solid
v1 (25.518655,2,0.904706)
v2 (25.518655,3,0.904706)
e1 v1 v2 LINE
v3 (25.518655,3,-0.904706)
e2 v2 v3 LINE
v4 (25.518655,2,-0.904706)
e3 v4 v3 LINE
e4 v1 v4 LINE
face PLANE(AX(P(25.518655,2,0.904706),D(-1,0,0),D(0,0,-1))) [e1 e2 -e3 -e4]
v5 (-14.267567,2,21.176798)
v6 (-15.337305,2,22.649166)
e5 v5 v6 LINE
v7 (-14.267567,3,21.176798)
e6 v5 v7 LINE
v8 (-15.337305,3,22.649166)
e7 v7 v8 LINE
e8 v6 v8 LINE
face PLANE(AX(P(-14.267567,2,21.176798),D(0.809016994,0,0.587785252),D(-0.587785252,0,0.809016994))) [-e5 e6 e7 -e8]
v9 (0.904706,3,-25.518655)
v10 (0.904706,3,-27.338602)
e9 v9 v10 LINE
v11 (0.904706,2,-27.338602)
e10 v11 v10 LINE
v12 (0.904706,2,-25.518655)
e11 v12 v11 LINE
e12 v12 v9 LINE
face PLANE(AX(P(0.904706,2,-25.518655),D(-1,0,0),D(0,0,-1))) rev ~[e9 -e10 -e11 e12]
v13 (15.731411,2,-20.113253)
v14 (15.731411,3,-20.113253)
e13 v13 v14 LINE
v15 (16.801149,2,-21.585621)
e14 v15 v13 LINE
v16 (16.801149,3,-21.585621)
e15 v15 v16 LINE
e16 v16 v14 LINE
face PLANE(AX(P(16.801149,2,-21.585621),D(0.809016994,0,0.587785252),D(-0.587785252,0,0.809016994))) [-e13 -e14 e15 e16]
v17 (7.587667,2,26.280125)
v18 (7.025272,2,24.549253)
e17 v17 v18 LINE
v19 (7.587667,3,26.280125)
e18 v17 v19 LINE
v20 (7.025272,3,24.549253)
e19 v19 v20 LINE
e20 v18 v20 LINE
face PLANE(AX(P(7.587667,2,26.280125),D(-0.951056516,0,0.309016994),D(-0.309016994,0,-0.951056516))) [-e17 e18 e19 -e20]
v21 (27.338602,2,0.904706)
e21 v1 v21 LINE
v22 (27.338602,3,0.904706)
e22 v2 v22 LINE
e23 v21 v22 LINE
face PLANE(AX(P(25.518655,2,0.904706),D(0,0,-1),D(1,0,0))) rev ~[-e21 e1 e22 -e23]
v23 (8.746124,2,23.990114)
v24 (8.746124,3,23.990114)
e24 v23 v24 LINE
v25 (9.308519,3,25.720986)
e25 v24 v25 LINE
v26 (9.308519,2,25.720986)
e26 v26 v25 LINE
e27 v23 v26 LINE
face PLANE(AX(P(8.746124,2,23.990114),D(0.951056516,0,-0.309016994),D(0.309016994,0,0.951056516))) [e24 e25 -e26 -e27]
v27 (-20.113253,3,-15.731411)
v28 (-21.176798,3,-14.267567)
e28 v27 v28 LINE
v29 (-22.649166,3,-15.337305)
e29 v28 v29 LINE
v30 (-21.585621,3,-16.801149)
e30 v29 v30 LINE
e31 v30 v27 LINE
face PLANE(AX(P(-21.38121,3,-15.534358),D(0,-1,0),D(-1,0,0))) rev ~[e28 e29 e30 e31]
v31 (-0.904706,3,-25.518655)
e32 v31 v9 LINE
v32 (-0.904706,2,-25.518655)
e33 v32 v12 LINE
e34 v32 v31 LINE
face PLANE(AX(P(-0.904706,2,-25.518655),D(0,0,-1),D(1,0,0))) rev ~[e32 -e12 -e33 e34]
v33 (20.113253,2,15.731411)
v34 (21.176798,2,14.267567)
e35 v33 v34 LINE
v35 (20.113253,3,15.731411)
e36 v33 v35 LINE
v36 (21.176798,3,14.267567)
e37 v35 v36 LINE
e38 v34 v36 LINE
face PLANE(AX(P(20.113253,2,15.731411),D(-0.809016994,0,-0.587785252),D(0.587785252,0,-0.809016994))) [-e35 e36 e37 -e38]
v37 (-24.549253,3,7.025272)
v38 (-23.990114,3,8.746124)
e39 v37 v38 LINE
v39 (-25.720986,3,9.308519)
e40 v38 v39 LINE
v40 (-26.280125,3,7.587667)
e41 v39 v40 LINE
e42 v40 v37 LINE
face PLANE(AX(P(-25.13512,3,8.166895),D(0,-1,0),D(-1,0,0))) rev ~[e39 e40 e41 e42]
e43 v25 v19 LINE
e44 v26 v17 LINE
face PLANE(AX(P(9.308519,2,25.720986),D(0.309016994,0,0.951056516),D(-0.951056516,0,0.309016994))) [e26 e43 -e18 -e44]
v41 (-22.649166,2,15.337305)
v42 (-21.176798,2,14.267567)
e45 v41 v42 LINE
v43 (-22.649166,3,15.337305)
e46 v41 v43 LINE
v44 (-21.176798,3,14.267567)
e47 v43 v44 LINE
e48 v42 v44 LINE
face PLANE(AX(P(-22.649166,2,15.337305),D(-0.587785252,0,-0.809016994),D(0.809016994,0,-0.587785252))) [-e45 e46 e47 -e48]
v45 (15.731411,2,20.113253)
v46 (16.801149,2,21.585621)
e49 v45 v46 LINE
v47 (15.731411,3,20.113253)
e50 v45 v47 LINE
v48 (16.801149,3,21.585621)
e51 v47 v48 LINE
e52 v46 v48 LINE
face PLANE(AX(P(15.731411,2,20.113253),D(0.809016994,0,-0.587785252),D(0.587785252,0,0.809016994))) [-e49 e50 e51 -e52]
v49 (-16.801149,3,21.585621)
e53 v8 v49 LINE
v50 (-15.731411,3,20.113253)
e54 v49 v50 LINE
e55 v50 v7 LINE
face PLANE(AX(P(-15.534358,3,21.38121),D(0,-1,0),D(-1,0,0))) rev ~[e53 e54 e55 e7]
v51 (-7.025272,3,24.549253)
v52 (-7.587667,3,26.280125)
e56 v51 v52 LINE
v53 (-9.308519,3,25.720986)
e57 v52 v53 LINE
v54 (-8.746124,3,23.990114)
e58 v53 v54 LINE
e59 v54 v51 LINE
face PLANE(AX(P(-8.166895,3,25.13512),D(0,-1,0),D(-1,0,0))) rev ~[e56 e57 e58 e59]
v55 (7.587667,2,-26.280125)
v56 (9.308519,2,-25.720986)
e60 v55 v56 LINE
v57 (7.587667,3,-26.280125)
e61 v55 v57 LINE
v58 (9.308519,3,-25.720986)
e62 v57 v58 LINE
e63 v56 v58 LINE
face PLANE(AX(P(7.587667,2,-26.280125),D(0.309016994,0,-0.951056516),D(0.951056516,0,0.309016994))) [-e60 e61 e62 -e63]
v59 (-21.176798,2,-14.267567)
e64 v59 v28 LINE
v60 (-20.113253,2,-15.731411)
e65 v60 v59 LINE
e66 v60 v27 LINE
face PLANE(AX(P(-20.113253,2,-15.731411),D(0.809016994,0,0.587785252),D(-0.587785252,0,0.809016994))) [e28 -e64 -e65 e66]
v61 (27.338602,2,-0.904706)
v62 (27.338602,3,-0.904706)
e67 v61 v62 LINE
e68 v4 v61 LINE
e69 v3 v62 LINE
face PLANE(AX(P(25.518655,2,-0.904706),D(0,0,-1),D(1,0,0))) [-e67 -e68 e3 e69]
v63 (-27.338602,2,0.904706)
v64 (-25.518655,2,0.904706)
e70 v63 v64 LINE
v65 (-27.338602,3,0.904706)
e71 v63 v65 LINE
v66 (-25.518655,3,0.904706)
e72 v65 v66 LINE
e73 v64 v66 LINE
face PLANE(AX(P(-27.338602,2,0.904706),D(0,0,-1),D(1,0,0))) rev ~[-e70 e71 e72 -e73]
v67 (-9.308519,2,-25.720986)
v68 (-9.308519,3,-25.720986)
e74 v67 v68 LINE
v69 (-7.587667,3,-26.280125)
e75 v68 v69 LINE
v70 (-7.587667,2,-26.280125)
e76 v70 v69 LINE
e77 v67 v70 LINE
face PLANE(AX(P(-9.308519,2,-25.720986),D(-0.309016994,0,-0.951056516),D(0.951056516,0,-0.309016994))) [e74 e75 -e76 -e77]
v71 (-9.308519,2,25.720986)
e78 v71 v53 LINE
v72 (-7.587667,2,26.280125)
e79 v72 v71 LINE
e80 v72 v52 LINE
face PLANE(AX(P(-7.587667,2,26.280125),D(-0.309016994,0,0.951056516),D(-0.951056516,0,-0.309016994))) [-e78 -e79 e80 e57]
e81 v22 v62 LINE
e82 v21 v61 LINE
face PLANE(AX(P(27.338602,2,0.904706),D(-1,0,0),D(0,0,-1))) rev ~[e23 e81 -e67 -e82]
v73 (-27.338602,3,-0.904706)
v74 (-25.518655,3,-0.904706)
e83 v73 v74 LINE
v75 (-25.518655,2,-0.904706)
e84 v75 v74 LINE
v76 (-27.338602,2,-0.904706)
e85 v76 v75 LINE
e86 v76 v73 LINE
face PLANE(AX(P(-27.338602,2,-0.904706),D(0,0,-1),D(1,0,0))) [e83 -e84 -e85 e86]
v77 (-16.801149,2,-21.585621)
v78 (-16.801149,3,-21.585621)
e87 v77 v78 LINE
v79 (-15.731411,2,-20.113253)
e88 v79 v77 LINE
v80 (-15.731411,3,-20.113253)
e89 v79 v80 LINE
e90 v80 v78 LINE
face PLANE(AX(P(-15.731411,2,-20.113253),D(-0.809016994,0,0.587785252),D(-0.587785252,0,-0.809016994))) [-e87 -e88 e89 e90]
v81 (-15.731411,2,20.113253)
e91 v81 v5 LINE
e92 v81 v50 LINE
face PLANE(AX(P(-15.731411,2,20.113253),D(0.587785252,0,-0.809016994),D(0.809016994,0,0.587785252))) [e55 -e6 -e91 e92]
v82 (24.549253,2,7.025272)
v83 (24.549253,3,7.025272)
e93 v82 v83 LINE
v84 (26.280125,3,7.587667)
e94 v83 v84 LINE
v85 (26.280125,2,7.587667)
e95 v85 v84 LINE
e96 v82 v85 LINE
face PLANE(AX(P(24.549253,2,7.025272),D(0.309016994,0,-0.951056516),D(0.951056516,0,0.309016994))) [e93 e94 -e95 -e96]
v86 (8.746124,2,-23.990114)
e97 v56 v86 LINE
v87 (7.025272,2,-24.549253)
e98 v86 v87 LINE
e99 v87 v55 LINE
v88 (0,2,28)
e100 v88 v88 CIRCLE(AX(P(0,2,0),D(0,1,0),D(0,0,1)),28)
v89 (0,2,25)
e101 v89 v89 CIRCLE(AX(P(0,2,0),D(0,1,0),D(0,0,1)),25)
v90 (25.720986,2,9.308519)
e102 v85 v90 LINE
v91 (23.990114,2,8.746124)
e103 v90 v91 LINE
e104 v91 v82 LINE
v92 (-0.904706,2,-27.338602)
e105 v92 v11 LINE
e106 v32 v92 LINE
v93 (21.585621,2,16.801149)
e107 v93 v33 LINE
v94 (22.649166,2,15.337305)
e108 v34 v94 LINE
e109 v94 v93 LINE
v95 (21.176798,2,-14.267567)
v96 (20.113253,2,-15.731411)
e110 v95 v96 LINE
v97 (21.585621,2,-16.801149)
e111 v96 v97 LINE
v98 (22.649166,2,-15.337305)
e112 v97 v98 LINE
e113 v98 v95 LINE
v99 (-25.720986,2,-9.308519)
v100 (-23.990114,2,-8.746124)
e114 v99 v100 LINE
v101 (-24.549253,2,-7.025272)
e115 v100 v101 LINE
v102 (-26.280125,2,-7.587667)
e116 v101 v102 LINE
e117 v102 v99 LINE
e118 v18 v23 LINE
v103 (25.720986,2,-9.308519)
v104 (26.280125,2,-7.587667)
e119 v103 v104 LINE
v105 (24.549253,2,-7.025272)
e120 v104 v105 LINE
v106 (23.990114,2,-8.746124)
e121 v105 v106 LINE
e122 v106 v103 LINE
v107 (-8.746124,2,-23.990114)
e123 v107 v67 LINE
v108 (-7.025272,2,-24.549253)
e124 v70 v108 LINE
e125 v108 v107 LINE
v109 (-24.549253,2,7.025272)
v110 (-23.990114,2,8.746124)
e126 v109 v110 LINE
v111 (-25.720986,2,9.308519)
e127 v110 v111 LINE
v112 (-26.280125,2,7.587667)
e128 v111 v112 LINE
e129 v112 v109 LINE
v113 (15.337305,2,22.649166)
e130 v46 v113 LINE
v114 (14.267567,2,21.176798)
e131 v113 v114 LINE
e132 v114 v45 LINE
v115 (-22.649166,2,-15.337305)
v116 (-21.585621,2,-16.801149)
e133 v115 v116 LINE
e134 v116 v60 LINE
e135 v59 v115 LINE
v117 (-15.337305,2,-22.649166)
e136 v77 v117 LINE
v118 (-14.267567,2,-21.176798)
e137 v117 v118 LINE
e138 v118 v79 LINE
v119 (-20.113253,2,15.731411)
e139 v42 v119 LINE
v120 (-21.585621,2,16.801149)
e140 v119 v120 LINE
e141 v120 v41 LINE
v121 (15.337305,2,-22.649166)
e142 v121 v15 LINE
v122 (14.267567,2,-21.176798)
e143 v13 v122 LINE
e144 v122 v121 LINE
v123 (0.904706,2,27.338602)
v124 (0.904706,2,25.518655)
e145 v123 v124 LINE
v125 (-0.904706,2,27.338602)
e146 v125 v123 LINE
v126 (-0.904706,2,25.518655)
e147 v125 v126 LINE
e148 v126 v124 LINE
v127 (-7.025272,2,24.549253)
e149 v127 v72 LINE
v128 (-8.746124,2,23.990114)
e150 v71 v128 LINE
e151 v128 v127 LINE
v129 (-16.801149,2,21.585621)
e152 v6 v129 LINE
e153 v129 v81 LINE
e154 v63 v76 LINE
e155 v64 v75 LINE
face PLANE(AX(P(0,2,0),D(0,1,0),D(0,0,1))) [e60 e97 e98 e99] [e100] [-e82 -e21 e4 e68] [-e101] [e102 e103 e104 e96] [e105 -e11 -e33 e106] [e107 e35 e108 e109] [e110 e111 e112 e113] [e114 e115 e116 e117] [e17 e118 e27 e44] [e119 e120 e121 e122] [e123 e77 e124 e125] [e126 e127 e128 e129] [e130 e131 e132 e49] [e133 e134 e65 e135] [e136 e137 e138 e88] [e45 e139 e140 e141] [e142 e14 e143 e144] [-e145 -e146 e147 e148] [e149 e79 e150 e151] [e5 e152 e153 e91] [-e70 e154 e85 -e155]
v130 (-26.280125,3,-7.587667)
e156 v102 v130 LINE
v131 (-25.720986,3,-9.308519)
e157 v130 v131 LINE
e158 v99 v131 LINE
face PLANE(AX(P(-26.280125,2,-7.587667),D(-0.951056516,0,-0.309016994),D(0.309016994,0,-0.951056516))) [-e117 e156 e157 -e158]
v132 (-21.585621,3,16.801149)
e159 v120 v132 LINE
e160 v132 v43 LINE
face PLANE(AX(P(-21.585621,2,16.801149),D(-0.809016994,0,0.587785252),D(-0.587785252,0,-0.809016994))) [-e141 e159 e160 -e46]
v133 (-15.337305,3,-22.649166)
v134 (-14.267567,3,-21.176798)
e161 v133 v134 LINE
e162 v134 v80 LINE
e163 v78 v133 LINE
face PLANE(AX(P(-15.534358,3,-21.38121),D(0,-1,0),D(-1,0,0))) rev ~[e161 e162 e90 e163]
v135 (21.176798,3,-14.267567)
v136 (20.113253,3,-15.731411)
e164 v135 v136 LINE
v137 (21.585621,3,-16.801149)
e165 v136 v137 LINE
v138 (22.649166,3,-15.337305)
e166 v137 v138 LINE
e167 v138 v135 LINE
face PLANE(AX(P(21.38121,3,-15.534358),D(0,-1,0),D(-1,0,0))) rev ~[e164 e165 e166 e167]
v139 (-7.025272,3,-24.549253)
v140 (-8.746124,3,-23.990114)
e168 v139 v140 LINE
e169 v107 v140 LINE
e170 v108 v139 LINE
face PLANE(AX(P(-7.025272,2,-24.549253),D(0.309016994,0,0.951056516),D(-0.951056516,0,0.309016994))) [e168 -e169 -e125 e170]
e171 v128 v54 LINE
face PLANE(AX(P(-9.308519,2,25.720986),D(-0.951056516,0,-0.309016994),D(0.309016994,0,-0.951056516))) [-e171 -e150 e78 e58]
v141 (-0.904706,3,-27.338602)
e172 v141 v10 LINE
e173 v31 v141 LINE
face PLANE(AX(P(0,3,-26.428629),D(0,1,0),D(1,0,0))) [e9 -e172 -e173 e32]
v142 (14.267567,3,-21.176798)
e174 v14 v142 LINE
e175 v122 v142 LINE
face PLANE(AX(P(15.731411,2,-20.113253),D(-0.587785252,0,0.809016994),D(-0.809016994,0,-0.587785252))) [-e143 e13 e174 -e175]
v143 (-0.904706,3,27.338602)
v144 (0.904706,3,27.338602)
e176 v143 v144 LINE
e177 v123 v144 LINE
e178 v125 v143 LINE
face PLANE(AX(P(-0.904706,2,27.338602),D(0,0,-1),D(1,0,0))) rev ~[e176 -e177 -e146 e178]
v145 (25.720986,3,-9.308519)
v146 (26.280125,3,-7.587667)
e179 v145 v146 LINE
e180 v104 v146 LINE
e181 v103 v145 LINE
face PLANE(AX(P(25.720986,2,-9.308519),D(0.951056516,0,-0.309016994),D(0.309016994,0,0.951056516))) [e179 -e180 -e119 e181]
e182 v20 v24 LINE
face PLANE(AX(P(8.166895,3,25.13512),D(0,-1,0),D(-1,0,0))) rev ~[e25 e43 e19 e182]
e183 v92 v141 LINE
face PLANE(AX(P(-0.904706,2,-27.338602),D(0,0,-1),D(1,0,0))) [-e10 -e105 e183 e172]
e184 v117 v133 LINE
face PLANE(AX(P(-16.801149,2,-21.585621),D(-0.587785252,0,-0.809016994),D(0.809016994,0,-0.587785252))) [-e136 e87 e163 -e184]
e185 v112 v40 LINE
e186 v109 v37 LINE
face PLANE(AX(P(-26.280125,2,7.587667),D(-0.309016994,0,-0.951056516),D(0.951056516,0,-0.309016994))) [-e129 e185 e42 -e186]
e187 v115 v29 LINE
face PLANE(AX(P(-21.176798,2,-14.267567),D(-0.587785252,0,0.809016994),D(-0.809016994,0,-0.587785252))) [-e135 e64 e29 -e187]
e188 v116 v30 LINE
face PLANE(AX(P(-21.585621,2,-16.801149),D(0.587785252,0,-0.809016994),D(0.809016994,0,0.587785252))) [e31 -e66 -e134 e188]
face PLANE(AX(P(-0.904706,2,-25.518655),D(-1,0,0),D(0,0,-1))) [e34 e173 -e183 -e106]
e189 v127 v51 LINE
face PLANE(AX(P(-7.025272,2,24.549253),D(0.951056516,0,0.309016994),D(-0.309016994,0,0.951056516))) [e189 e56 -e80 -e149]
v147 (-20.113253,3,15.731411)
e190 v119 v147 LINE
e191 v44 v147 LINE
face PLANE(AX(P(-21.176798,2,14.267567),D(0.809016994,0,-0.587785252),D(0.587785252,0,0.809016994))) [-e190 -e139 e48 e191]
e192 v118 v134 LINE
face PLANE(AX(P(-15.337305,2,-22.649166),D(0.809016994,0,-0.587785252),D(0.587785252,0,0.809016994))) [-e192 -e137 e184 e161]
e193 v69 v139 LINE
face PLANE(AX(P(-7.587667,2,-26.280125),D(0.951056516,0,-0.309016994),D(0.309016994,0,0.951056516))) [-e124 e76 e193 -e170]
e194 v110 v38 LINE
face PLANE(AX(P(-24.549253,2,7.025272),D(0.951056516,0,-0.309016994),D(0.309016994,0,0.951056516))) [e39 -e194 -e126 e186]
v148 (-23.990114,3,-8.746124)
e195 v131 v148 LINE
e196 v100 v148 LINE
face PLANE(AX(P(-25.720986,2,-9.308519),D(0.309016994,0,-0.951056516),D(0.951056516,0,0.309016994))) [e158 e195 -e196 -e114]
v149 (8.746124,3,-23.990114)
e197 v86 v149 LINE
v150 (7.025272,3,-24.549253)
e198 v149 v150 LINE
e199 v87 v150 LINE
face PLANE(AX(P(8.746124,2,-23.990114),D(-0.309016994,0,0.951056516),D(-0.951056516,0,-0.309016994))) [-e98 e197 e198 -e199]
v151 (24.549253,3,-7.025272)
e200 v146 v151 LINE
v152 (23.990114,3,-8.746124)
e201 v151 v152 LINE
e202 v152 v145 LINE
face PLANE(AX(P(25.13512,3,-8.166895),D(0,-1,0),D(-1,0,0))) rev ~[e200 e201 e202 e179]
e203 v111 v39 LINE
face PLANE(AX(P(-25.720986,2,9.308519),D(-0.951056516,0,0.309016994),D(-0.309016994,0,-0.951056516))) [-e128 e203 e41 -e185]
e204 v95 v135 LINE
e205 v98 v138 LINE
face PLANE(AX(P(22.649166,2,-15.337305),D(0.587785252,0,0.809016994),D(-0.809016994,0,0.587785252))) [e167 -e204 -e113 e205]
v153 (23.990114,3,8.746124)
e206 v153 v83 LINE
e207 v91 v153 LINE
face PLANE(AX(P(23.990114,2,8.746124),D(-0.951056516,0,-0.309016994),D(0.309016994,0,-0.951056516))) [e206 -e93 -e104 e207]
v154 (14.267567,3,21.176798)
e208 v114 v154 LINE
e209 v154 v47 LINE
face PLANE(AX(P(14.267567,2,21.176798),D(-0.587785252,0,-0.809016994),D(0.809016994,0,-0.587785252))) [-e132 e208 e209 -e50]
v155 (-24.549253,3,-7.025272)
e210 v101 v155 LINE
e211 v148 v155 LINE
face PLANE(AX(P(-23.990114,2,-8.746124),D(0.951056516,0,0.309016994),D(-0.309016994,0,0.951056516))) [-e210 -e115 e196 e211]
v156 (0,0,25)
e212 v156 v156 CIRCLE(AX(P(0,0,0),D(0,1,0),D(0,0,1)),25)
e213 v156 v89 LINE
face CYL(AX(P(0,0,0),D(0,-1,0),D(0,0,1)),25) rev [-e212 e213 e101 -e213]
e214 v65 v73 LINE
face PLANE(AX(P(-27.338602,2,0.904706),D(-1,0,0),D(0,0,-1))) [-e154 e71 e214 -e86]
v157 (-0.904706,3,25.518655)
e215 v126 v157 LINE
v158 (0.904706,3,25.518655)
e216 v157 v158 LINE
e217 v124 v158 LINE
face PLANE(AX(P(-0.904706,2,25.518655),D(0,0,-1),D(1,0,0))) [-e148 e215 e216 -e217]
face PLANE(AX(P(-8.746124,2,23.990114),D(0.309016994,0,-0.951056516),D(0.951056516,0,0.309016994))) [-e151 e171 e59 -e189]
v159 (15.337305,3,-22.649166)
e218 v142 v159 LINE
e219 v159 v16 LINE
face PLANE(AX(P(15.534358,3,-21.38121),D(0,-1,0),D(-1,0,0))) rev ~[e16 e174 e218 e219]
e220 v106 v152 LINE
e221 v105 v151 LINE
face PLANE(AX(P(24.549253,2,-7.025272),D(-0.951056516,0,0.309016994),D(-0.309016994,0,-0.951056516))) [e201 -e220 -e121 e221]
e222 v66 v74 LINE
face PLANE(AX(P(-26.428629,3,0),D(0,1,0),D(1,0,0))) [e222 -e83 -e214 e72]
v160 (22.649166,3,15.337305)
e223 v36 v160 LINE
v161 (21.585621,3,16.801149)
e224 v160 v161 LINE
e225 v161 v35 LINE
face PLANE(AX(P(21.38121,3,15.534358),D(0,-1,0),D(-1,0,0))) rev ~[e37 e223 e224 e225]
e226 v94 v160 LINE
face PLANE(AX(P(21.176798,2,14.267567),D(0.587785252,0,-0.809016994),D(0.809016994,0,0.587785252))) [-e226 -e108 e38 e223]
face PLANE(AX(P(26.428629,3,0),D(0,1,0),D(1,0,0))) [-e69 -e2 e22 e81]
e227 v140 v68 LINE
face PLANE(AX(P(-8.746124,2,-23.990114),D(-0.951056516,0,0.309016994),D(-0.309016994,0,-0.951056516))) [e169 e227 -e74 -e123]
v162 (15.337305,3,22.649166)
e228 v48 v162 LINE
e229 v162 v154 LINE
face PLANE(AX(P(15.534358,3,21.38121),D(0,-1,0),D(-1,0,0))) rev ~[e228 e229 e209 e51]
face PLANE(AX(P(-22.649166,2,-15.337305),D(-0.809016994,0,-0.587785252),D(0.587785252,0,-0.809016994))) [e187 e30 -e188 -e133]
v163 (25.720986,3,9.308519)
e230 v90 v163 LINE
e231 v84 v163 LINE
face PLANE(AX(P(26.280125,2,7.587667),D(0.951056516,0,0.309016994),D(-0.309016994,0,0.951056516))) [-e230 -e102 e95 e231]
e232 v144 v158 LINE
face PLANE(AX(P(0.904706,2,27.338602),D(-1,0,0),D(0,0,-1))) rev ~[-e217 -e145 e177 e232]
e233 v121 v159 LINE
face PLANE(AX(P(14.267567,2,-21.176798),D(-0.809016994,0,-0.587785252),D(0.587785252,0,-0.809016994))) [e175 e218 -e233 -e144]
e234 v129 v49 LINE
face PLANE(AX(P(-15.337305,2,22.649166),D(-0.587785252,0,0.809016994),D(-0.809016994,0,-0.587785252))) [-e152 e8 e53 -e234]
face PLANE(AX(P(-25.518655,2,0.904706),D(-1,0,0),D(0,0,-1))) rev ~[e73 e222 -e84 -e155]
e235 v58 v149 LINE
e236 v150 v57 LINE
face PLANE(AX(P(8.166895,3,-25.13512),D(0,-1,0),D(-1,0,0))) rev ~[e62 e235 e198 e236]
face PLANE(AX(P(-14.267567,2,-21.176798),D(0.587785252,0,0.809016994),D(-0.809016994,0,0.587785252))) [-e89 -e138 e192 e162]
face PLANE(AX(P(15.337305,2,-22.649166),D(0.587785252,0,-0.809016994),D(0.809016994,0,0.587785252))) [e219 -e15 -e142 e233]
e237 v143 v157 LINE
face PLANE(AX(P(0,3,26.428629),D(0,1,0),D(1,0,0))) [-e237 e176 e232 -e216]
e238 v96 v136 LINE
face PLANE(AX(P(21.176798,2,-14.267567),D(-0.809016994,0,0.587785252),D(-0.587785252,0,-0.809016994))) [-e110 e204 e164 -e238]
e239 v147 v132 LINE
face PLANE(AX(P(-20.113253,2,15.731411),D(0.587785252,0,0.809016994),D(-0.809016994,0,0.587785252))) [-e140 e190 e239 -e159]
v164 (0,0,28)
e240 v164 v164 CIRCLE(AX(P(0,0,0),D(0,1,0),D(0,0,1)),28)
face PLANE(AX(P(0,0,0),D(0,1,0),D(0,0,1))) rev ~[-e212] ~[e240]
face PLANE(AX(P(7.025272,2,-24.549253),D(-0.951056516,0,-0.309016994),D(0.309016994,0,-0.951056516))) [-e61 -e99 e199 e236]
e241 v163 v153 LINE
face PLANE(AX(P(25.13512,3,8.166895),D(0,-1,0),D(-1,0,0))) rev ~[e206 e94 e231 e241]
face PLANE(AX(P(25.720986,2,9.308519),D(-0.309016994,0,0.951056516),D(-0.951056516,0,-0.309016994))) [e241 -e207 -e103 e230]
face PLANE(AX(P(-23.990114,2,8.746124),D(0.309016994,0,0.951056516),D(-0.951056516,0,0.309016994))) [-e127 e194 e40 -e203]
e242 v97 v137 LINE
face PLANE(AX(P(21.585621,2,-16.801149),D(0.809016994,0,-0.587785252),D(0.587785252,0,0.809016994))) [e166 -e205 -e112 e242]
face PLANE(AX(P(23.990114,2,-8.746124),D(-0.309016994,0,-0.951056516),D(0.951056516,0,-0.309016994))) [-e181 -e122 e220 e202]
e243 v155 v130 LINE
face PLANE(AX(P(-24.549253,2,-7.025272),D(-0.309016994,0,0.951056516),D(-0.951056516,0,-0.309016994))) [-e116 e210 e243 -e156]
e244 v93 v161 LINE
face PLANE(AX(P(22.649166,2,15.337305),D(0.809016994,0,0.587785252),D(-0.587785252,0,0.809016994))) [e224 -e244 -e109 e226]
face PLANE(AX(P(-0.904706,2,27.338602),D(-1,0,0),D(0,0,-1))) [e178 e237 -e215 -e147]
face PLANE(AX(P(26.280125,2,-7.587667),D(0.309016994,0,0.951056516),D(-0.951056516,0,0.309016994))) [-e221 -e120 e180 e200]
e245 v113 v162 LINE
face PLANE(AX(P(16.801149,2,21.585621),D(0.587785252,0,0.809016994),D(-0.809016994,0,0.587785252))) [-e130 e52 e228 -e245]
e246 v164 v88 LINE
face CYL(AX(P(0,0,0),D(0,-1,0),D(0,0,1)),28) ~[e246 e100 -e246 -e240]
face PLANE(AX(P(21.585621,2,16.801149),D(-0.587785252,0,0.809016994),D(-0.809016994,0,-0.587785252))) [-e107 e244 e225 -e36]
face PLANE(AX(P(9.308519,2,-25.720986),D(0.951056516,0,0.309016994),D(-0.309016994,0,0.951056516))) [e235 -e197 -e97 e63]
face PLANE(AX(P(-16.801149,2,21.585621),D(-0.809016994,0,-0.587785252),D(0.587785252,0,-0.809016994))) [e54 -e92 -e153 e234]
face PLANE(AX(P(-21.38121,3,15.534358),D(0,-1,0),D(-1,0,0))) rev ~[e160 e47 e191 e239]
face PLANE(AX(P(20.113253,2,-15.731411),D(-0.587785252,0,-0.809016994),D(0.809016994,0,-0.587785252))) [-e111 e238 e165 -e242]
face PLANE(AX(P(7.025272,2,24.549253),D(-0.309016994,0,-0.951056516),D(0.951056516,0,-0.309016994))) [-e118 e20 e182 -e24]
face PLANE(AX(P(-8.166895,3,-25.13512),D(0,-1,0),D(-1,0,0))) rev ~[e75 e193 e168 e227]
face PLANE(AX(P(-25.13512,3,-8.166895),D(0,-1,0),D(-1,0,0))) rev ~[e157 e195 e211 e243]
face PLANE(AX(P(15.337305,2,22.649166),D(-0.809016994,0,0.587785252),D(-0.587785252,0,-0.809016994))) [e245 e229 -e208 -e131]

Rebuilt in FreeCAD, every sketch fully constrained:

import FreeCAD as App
import Part
import Sketcher
Q = App.Units.Quantity

doc = App.newDocument("Part")
body = doc.addObject("PartDesign::Body", "Body")

sketch1 = doc.addObject("Sketcher::SketchObject", "Sketch")
body.addObject(sketch1)
sketch1.AttachmentSupport = (doc.XZ_Plane, [""])
sketch1.MapMode = "FlatFace"
sketch1.addGeometry(Part.Circle(App.Vector(0, 0, 0), App.Vector(0, 0, 1), 28), False)
sketch1.addGeometry(Part.Circle(App.Vector(0, 0, 0), App.Vector(0, 0, 1), 25), False)
sketch1.addConstraint(Sketcher.Constraint("Coincident", 0, 3, -1, 1))
sketch1.addConstraint(Sketcher.Constraint("Coincident", 1, 3, -1, 1))
sketch1.addConstraint(Sketcher.Constraint("Diameter", 0, 56.0))
sketch1.addConstraint(Sketcher.Constraint("Diameter", 1, 50.0))
pad1 = doc.addObject("PartDesign::Pad", "Pad")
body.addObject(pad1)
pad1.Profile = sketch1
pad1.Length = 2
pad1.Reversed = True

sketch2 = doc.addObject("Sketcher::SketchObject", "Sketch001")
body.addObject(sketch2)
sketch2.AttachmentSupport = (doc.XZ_Plane, [""])
sketch2.MapMode = "FlatFace"
sketch2.AttachmentOffset = App.Placement(App.Vector(0, 0, -2), App.Rotation())
sketch2.addGeometry(Part.LineSegment(App.Vector(9.308519, -25.720986, 0), App.Vector(7.587667, -26.280125, 0)), False)
sketch2.addGeometry(Part.LineSegment(App.Vector(7.587667, -26.280125, 0), App.Vector(7.025272, -24.549253, 0)), False)
sketch2.addGeometry(Part.LineSegment(App.Vector(7.025272, -24.549253, 0), App.Vector(8.746124, -23.990114, 0)), False)
sketch2.addGeometry(Part.LineSegment(App.Vector(8.746124, -23.990114, 0), App.Vector(9.308519, -25.720986, 0)), False)
sketch2.addGeometry(Part.LineSegment(App.Vector(-0.904706, -27.338602, 0), App.Vector(-0.904706, -25.518655, 0)), False)
sketch2.addGeometry(Part.LineSegment(App.Vector(-0.904706, -25.518655, 0), App.Vector(0.904706, -25.518655, 0)), False)
sketch2.addGeometry(Part.LineSegment(App.Vector(0.904706, -25.518655, 0), App.Vector(0.904706, -27.338602, 0)), False)
sketch2.addGeometry(Part.LineSegment(App.Vector(0.904706, -27.338602, 0), App.Vector(-0.904706, -27.338602, 0)), False)
sketch2.addGeometry(Part.LineSegment(App.Vector(16.801149, -21.585621, 0), App.Vector(15.337305, -22.649166, 0)), False)
sketch2.addGeometry(Part.LineSegment(App.Vector(15.337305, -22.649166, 0), App.Vector(14.267567, -21.176798, 0)), False)
sketch2.addGeometry(Part.LineSegment(App.Vector(14.267567, -21.176798, 0), App.Vector(15.731411, -20.113253, 0)), False)
sketch2.addGeometry(Part.LineSegment(App.Vector(15.731411, -20.113253, 0), App.Vector(16.801149, -21.585621, 0)), False)
sketch2.addGeometry(Part.LineSegment(App.Vector(22.649166, -15.337305, 0), App.Vector(21.585621, -16.801149, 0)), False)
sketch2.addGeometry(Part.LineSegment(App.Vector(21.585621, -16.801149, 0), App.Vector(20.113253, -15.731411, 0)), False)
sketch2.addGeometry(Part.LineSegment(App.Vector(20.113253, -15.731411, 0), App.Vector(21.176798, -14.267567, 0)), False)
sketch2.addGeometry(Part.LineSegment(App.Vector(21.176798, -14.267567, 0), App.Vector(22.649166, -15.337305, 0)), False)
sketch2.addGeometry(Part.LineSegment(App.Vector(26.280125, -7.587667, 0), App.Vector(25.720986, -9.308519, 0)), False)
sketch2.addGeometry(Part.LineSegment(App.Vector(25.720986, -9.308519, 0), App.Vector(23.990114, -8.746124, 0)), False)
sketch2.addGeometry(Part.LineSegment(App.Vector(23.990114, -8.746124, 0), App.Vector(24.549253, -7.025272, 0)), False)
sketch2.addGeometry(Part.LineSegment(App.Vector(24.549253, -7.025272, 0), App.Vector(26.280125, -7.587667, 0)), False)
sketch2.addGeometry(Part.LineSegment(App.Vector(25.518655, -0.904706, 0), App.Vector(25.518655, 0.904706, 0)), False)
sketch2.addGeometry(Part.LineSegment(App.Vector(25.518655, 0.904706, 0), App.Vector(27.338602, 0.904706, 0)), False)
sketch2.addGeometry(Part.LineSegment(App.Vector(27.338602, 0.904706, 0), App.Vector(27.338602, -0.904706, 0)), False)
sketch2.addGeometry(Part.LineSegment(App.Vector(27.338602, -0.904706, 0), App.Vector(25.518655, -0.904706, 0)), False)
sketch2.addGeometry(Part.LineSegment(App.Vector(25.720986, 9.308519, 0), App.Vector(26.280125, 7.587667, 0)), False)
sketch2.addGeometry(Part.LineSegment(App.Vector(26.280125, 7.587667, 0), App.Vector(24.549253, 7.025272, 0)), False)
sketch2.addGeometry(Part.LineSegment(App.Vector(24.549253, 7.025272, 0), App.Vector(23.990114, 8.746124, 0)), False)
sketch2.addGeometry(Part.LineSegment(App.Vector(23.990114, 8.746124, 0), App.Vector(25.720986, 9.308519, 0)), False)
sketch2.addGeometry(Part.LineSegment(App.Vector(21.585621, 16.801149, 0), App.Vector(22.649166, 15.337305, 0)), False)
sketch2.addGeometry(Part.LineSegment(App.Vector(22.649166, 15.337305, 0), App.Vector(21.176798, 14.267567, 0)), False)
sketch2.addGeometry(Part.LineSegment(App.Vector(21.176798, 14.267567, 0), App.Vector(20.113253, 15.731411, 0)), False)
sketch2.addGeometry(Part.LineSegment(App.Vector(20.113253, 15.731411, 0), App.Vector(21.585621, 16.801149, 0)), False)
sketch2.addGeometry(Part.LineSegment(App.Vector(15.337305, 22.649166, 0), App.Vector(16.801149, 21.585621, 0)), False)
sketch2.addGeometry(Part.LineSegment(App.Vector(16.801149, 21.585621, 0), App.Vector(15.731411, 20.113253, 0)), False)
sketch2.addGeometry(Part.LineSegment(App.Vector(15.731411, 20.113253, 0), App.Vector(14.267567, 21.176798, 0)), False)
sketch2.addGeometry(Part.LineSegment(App.Vector(14.267567, 21.176798, 0), App.Vector(15.337305, 22.649166, 0)), False)
sketch2.addGeometry(Part.LineSegment(App.Vector(7.587667, 26.280125, 0), App.Vector(9.308519, 25.720986, 0)), False)
sketch2.addGeometry(Part.LineSegment(App.Vector(9.308519, 25.720986, 0), App.Vector(8.746124, 23.990114, 0)), False)
sketch2.addGeometry(Part.LineSegment(App.Vector(8.746124, 23.990114, 0), App.Vector(7.025272, 24.549253, 0)), False)
sketch2.addGeometry(Part.LineSegment(App.Vector(7.025272, 24.549253, 0), App.Vector(7.587667, 26.280125, 0)), False)
sketch2.addGeometry(Part.LineSegment(App.Vector(-0.904706, 25.518655, 0), App.Vector(-0.904706, 27.338602, 0)), False)
sketch2.addGeometry(Part.LineSegment(App.Vector(-0.904706, 27.338602, 0), App.Vector(0.904706, 27.338602, 0)), False)
sketch2.addGeometry(Part.LineSegment(App.Vector(0.904706, 27.338602, 0), App.Vector(0.904706, 25.518655, 0)), False)
sketch2.addGeometry(Part.LineSegment(App.Vector(0.904706, 25.518655, 0), App.Vector(-0.904706, 25.518655, 0)), False)
sketch2.addGeometry(Part.LineSegment(App.Vector(-9.308519, 25.720986, 0), App.Vector(-7.587667, 26.280125, 0)), False)
sketch2.addGeometry(Part.LineSegment(App.Vector(-7.587667, 26.280125, 0), App.Vector(-7.025272, 24.549253, 0)), False)
sketch2.addGeometry(Part.LineSegment(App.Vector(-7.025272, 24.549253, 0), App.Vector(-8.746124, 23.990114, 0)), False)
sketch2.addGeometry(Part.LineSegment(App.Vector(-8.746124, 23.990114, 0), App.Vector(-9.308519, 25.720986, 0)), False)
sketch2.addGeometry(Part.LineSegment(App.Vector(-16.801149, 21.585621, 0), App.Vector(-15.337305, 22.649166, 0)), False)
sketch2.addGeometry(Part.LineSegment(App.Vector(-15.337305, 22.649166, 0), App.Vector(-14.267567, 21.176798, 0)), False)
sketch2.addGeometry(Part.LineSegment(App.Vector(-14.267567, 21.176798, 0), App.Vector(-15.731411, 20.113253, 0)), False)
sketch2.addGeometry(Part.LineSegment(App.Vector(-15.731411, 20.113253, 0), App.Vector(-16.801149, 21.585621, 0)), False)
sketch2.addGeometry(Part.LineSegment(App.Vector(-22.649166, 15.337305, 0), App.Vector(-21.585621, 16.801149, 0)), False)
sketch2.addGeometry(Part.LineSegment(App.Vector(-21.585621, 16.801149, 0), App.Vector(-20.113253, 15.731411, 0)), False)
sketch2.addGeometry(Part.LineSegment(App.Vector(-20.113253, 15.731411, 0), App.Vector(-21.176798, 14.267567, 0)), False)
sketch2.addGeometry(Part.LineSegment(App.Vector(-21.176798, 14.267567, 0), App.Vector(-22.649166, 15.337305, 0)), False)
sketch2.addGeometry(Part.LineSegment(App.Vector(-26.280125, 7.587667, 0), App.Vector(-25.720986, 9.308519, 0)), False)
sketch2.addGeometry(Part.LineSegment(App.Vector(-25.720986, 9.308519, 0), App.Vector(-23.990114, 8.746124, 0)), False)
sketch2.addGeometry(Part.LineSegment(App.Vector(-23.990114, 8.746124, 0), App.Vector(-24.549253, 7.025272, 0)), False)
sketch2.addGeometry(Part.LineSegment(App.Vector(-24.549253, 7.025272, 0), App.Vector(-26.280125, 7.587667, 0)), False)
sketch2.addGeometry(Part.LineSegment(App.Vector(-27.338602, -0.904706, 0), App.Vector(-27.338602, 0.904706, 0)), False)
sketch2.addGeometry(Part.LineSegment(App.Vector(-27.338602, 0.904706, 0), App.Vector(-25.518655, 0.904706, 0)), False)
sketch2.addGeometry(Part.LineSegment(App.Vector(-25.518655, 0.904706, 0), App.Vector(-25.518655, -0.904706, 0)), False)
sketch2.addGeometry(Part.LineSegment(App.Vector(-25.518655, -0.904706, 0), App.Vector(-27.338602, -0.904706, 0)), False)
sketch2.addGeometry(Part.LineSegment(App.Vector(-25.720986, -9.308519, 0), App.Vector(-26.280125, -7.587667, 0)), False)
sketch2.addGeometry(Part.LineSegment(App.Vector(-26.280125, -7.587667, 0), App.Vector(-24.549253, -7.025272, 0)), False)
sketch2.addGeometry(Part.LineSegment(App.Vector(-24.549253, -7.025272, 0), App.Vector(-23.990114, -8.746124, 0)), False)
sketch2.addGeometry(Part.LineSegment(App.Vector(-23.990114, -8.746124, 0), App.Vector(-25.720986, -9.308519, 0)), False)
sketch2.addGeometry(Part.LineSegment(App.Vector(-21.585621, -16.801149, 0), App.Vector(-22.649166, -15.337305, 0)), False)
sketch2.addGeometry(Part.LineSegment(App.Vector(-22.649166, -15.337305, 0), App.Vector(-21.176798, -14.267567, 0)), False)
sketch2.addGeometry(Part.LineSegment(App.Vector(-21.176798, -14.267567, 0), App.Vector(-20.113253, -15.731411, 0)), False)
sketch2.addGeometry(Part.LineSegment(App.Vector(-20.113253, -15.731411, 0), App.Vector(-21.585621, -16.801149, 0)), False)
sketch2.addGeometry(Part.LineSegment(App.Vector(-15.337305, -22.649166, 0), App.Vector(-16.801149, -21.585621, 0)), False)
sketch2.addGeometry(Part.LineSegment(App.Vector(-16.801149, -21.585621, 0), App.Vector(-15.731411, -20.113253, 0)), False)
sketch2.addGeometry(Part.LineSegment(App.Vector(-15.731411, -20.113253, 0), App.Vector(-14.267567, -21.176798, 0)), False)
sketch2.addGeometry(Part.LineSegment(App.Vector(-14.267567, -21.176798, 0), App.Vector(-15.337305, -22.649166, 0)), False)
sketch2.addGeometry(Part.LineSegment(App.Vector(-7.587667, -26.280125, 0), App.Vector(-9.308519, -25.720986, 0)), False)
sketch2.addGeometry(Part.LineSegment(App.Vector(-9.308519, -25.720986, 0), App.Vector(-8.746124, -23.990114, 0)), False)
sketch2.addGeometry(Part.LineSegment(App.Vector(-8.746124, -23.990114, 0), App.Vector(-7.025272, -24.549253, 0)), False)
sketch2.addGeometry(Part.LineSegment(App.Vector(-7.025272, -24.549253, 0), App.Vector(-7.587667, -26.280125, 0)), False)
sketch2.addConstraint(Sketcher.Constraint("Coincident", 0, 2, 1, 1))
sketch2.addConstraint(Sketcher.Constraint("Coincident", 1, 2, 2, 1))
sketch2.addConstraint(Sketcher.Constraint("Coincident", 2, 2, 3, 1))
sketch2.addConstraint(Sketcher.Constraint("Coincident", 3, 2, 0, 1))
sketch2.addConstraint(Sketcher.Constraint("Coincident", 4, 2, 5, 1))
sketch2.addConstraint(Sketcher.Constraint("Coincident", 5, 2, 6, 1))
sketch2.addConstraint(Sketcher.Constraint("Coincident", 6, 2, 7, 1))
sketch2.addConstraint(Sketcher.Constraint("Coincident", 7, 2, 4, 1))
sketch2.addConstraint(Sketcher.Constraint("Coincident", 8, 2, 9, 1))
sketch2.addConstraint(Sketcher.Constraint("Coincident", 9, 2, 10, 1))
sketch2.addConstraint(Sketcher.Constraint("Coincident", 10, 2, 11, 1))
sketch2.addConstraint(Sketcher.Constraint("Coincident", 11, 2, 8, 1))
sketch2.addConstraint(Sketcher.Constraint("Coincident", 12, 2, 13, 1))
sketch2.addConstraint(Sketcher.Constraint("Coincident", 13, 2, 14, 1))
sketch2.addConstraint(Sketcher.Constraint("Coincident", 14, 2, 15, 1))
sketch2.addConstraint(Sketcher.Constraint("Coincident", 15, 2, 12, 1))
sketch2.addConstraint(Sketcher.Constraint("Coincident", 16, 2, 17, 1))
sketch2.addConstraint(Sketcher.Constraint("Coincident", 17, 2, 18, 1))
sketch2.addConstraint(Sketcher.Constraint("Coincident", 18, 2, 19, 1))
sketch2.addConstraint(Sketcher.Constraint("Coincident", 19, 2, 16, 1))
sketch2.addConstraint(Sketcher.Constraint("Coincident", 20, 2, 21, 1))
sketch2.addConstraint(Sketcher.Constraint("Coincident", 21, 2, 22, 1))
sketch2.addConstraint(Sketcher.Constraint("Coincident", 22, 2, 23, 1))
sketch2.addConstraint(Sketcher.Constraint("Coincident", 23, 2, 20, 1))
sketch2.addConstraint(Sketcher.Constraint("Coincident", 24, 2, 25, 1))
sketch2.addConstraint(Sketcher.Constraint("Coincident", 25, 2, 26, 1))
sketch2.addConstraint(Sketcher.Constraint("Coincident", 26, 2, 27, 1))
sketch2.addConstraint(Sketcher.Constraint("Coincident", 27, 2, 24, 1))
sketch2.addConstraint(Sketcher.Constraint("Coincident", 28, 2, 29, 1))
sketch2.addConstraint(Sketcher.Constraint("Coincident", 29, 2, 30, 1))
sketch2.addConstraint(Sketcher.Constraint("Coincident", 30, 2, 31, 1))
sketch2.addConstraint(Sketcher.Constraint("Coincident", 31, 2, 28, 1))
sketch2.addConstraint(Sketcher.Constraint("Coincident", 32, 2, 33, 1))
sketch2.addConstraint(Sketcher.Constraint("Coincident", 33, 2, 34, 1))
sketch2.addConstraint(Sketcher.Constraint("Coincident", 34, 2, 35, 1))
sketch2.addConstraint(Sketcher.Constraint("Coincident", 35, 2, 32, 1))
sketch2.addConstraint(Sketcher.Constraint("Coincident", 36, 2, 37, 1))
sketch2.addConstraint(Sketcher.Constraint("Coincident", 37, 2, 38, 1))
sketch2.addConstraint(Sketcher.Constraint("Coincident", 38, 2, 39, 1))
sketch2.addConstraint(Sketcher.Constraint("Coincident", 39, 2, 36, 1))
sketch2.addConstraint(Sketcher.Constraint("Coincident", 40, 2, 41, 1))
sketch2.addConstraint(Sketcher.Constraint("Coincident", 41, 2, 42, 1))
sketch2.addConstraint(Sketcher.Constraint("Coincident", 42, 2, 43, 1))
sketch2.addConstraint(Sketcher.Constraint("Coincident", 43, 2, 40, 1))
sketch2.addConstraint(Sketcher.Constraint("Coincident", 44, 2, 45, 1))
sketch2.addConstraint(Sketcher.Constraint("Coincident", 45, 2, 46, 1))
sketch2.addConstraint(Sketcher.Constraint("Coincident", 46, 2, 47, 1))
sketch2.addConstraint(Sketcher.Constraint("Coincident", 47, 2, 44, 1))
sketch2.addConstraint(Sketcher.Constraint("Coincident", 48, 2, 49, 1))
sketch2.addConstraint(Sketcher.Constraint("Coincident", 49, 2, 50, 1))
sketch2.addConstraint(Sketcher.Constraint("Coincident", 50, 2, 51, 1))
sketch2.addConstraint(Sketcher.Constraint("Coincident", 51, 2, 48, 1))
sketch2.addConstraint(Sketcher.Constraint("Coincident", 52, 2, 53, 1))
sketch2.addConstraint(Sketcher.Constraint("Coincident", 53, 2, 54, 1))
sketch2.addConstraint(Sketcher.Constraint("Coincident", 54, 2, 55, 1))
sketch2.addConstraint(Sketcher.Constraint("Coincident", 55, 2, 52, 1))
sketch2.addConstraint(Sketcher.Constraint("Coincident", 56, 2, 57, 1))
sketch2.addConstraint(Sketcher.Constraint("Coincident", 57, 2, 58, 1))
sketch2.addConstraint(Sketcher.Constraint("Coincident", 58, 2, 59, 1))
sketch2.addConstraint(Sketcher.Constraint("Coincident", 59, 2, 56, 1))
sketch2.addConstraint(Sketcher.Constraint("Coincident", 60, 2, 61, 1))
sketch2.addConstraint(Sketcher.Constraint("Coincident", 61, 2, 62, 1))
sketch2.addConstraint(Sketcher.Constraint("Coincident", 62, 2, 63, 1))
sketch2.addConstraint(Sketcher.Constraint("Coincident", 63, 2, 60, 1))
sketch2.addConstraint(Sketcher.Constraint("Coincident", 64, 2, 65, 1))
sketch2.addConstraint(Sketcher.Constraint("Coincident", 65, 2, 66, 1))
sketch2.addConstraint(Sketcher.Constraint("Coincident", 66, 2, 67, 1))
sketch2.addConstraint(Sketcher.Constraint("Coincident", 67, 2, 64, 1))
sketch2.addConstraint(Sketcher.Constraint("Coincident", 68, 2, 69, 1))
sketch2.addConstraint(Sketcher.Constraint("Coincident", 69, 2, 70, 1))
sketch2.addConstraint(Sketcher.Constraint("Coincident", 70, 2, 71, 1))
sketch2.addConstraint(Sketcher.Constraint("Coincident", 71, 2, 68, 1))
sketch2.addConstraint(Sketcher.Constraint("Coincident", 72, 2, 73, 1))
sketch2.addConstraint(Sketcher.Constraint("Coincident", 73, 2, 74, 1))
sketch2.addConstraint(Sketcher.Constraint("Coincident", 74, 2, 75, 1))
sketch2.addConstraint(Sketcher.Constraint("Coincident", 75, 2, 72, 1))
sketch2.addConstraint(Sketcher.Constraint("Coincident", 76, 2, 77, 1))
sketch2.addConstraint(Sketcher.Constraint("Coincident", 77, 2, 78, 1))
sketch2.addConstraint(Sketcher.Constraint("Coincident", 78, 2, 79, 1))
sketch2.addConstraint(Sketcher.Constraint("Coincident", 79, 2, 76, 1))
sketch2.addConstraint(Sketcher.Constraint("Vertical", 4))
sketch2.addConstraint(Sketcher.Constraint("Horizontal", 5))
sketch2.addConstraint(Sketcher.Constraint("Vertical", 6))
sketch2.addConstraint(Sketcher.Constraint("Horizontal", 7))
sketch2.addConstraint(Sketcher.Constraint("Vertical", 20))
sketch2.addConstraint(Sketcher.Constraint("Horizontal", 21))
sketch2.addConstraint(Sketcher.Constraint("Vertical", 22))
sketch2.addConstraint(Sketcher.Constraint("Horizontal", 23))
sketch2.addConstraint(Sketcher.Constraint("Vertical", 40))
sketch2.addConstraint(Sketcher.Constraint("Horizontal", 41))
sketch2.addConstraint(Sketcher.Constraint("Vertical", 42))
sketch2.addConstraint(Sketcher.Constraint("Horizontal", 43))
sketch2.addConstraint(Sketcher.Constraint("Vertical", 60))
sketch2.addConstraint(Sketcher.Constraint("Horizontal", 61))
sketch2.addConstraint(Sketcher.Constraint("Vertical", 62))
sketch2.addConstraint(Sketcher.Constraint("Horizontal", 63))
sketch2.addConstraint(Sketcher.Constraint("Symmetric", 6, 2, 40, 2, -1, 1))
sketch2.addConstraint(Sketcher.Constraint("Symmetric", 4, 2, 42, 2, -1, 1))
sketch2.addConstraint(Sketcher.Constraint("Symmetric", 0, 2, 44, 2, -1, 1))
sketch2.addConstraint(Sketcher.Constraint("Symmetric", 1, 2, 45, 2, -1, 1))
sketch2.addConstraint(Sketcher.Constraint("Symmetric", 2, 2, 46, 2, -1, 1))
sketch2.addConstraint(Sketcher.Constraint("Symmetric", 3, 2, 47, 2, -1, 1))
sketch2.addConstraint(Sketcher.Constraint("Symmetric", 8, 2, 48, 2, -1, 1))
sketch2.addConstraint(Sketcher.Constraint("Symmetric", 9, 2, 49, 2, -1, 1))
sketch2.addConstraint(Sketcher.Constraint("Symmetric", 10, 2, 50, 2, -1, 1))
sketch2.addConstraint(Sketcher.Constraint("Symmetric", 11, 2, 51, 2, -1, 1))
sketch2.addConstraint(Sketcher.Constraint("Symmetric", 12, 2, 52, 2, -1, 1))
sketch2.addConstraint(Sketcher.Constraint("Symmetric", 13, 2, 53, 2, -1, 1))
sketch2.addConstraint(Sketcher.Constraint("Symmetric", 14, 2, 54, 2, -1, 1))
sketch2.addConstraint(Sketcher.Constraint("Symmetric", 15, 2, 55, 2, -1, 1))
sketch2.addConstraint(Sketcher.Constraint("Symmetric", 16, 2, 56, 2, -1, 1))
sketch2.addConstraint(Sketcher.Constraint("Symmetric", 17, 2, 57, 2, -1, 1))
sketch2.addConstraint(Sketcher.Constraint("Symmetric", 18, 2, 58, 2, -1, 1))
sketch2.addConstraint(Sketcher.Constraint("Symmetric", 19, 2, 59, 2, -1, 1))
sketch2.addConstraint(Sketcher.Constraint("Symmetric", 22, 2, 60, 2, -1, 1))
sketch2.addConstraint(Sketcher.Constraint("Symmetric", 20, 2, 62, 2, -1, 1))
sketch2.addConstraint(Sketcher.Constraint("Symmetric", 24, 2, 64, 2, -1, 1))
sketch2.addConstraint(Sketcher.Constraint("Symmetric", 25, 2, 65, 2, -1, 1))
sketch2.addConstraint(Sketcher.Constraint("Symmetric", 26, 2, 66, 2, -1, 1))
sketch2.addConstraint(Sketcher.Constraint("Symmetric", 27, 2, 67, 2, -1, 1))
sketch2.addConstraint(Sketcher.Constraint("Symmetric", 28, 2, 68, 2, -1, 1))
sketch2.addConstraint(Sketcher.Constraint("Symmetric", 29, 2, 69, 2, -1, 1))
sketch2.addConstraint(Sketcher.Constraint("Symmetric", 30, 2, 70, 2, -1, 1))
sketch2.addConstraint(Sketcher.Constraint("Symmetric", 31, 2, 71, 2, -1, 1))
sketch2.addConstraint(Sketcher.Constraint("Symmetric", 32, 2, 72, 2, -1, 1))
sketch2.addConstraint(Sketcher.Constraint("Symmetric", 33, 2, 73, 2, -1, 1))
sketch2.addConstraint(Sketcher.Constraint("Symmetric", 34, 2, 74, 2, -1, 1))
sketch2.addConstraint(Sketcher.Constraint("Symmetric", 35, 2, 75, 2, -1, 1))
sketch2.addConstraint(Sketcher.Constraint("Symmetric", 36, 2, 76, 2, -1, 1))
sketch2.addConstraint(Sketcher.Constraint("Symmetric", 37, 2, 77, 2, -1, 1))
sketch2.addConstraint(Sketcher.Constraint("Symmetric", 38, 2, 78, 2, -1, 1))
sketch2.addConstraint(Sketcher.Constraint("Symmetric", 39, 2, 79, 2, -1, 1))
sketch2.addConstraint(Sketcher.Constraint("Symmetric", 39, 2, 44, 2, -2))
sketch2.addConstraint(Sketcher.Constraint("Symmetric", 38, 2, 45, 2, -2))
sketch2.addConstraint(Sketcher.Constraint("Symmetric", 37, 2, 46, 2, -2))
sketch2.addConstraint(Sketcher.Constraint("Symmetric", 36, 2, 47, 2, -2))
sketch2.addConstraint(Sketcher.Constraint("Symmetric", 35, 2, 48, 2, -2))
sketch2.addConstraint(Sketcher.Constraint("Symmetric", 34, 2, 49, 2, -2))
sketch2.addConstraint(Sketcher.Constraint("Symmetric", 33, 2, 50, 2, -2))
sketch2.addConstraint(Sketcher.Constraint("Symmetric", 32, 2, 51, 2, -2))
sketch2.addConstraint(Sketcher.Constraint("Symmetric", 31, 2, 52, 2, -2))
sketch2.addConstraint(Sketcher.Constraint("Symmetric", 30, 2, 53, 2, -2))
sketch2.addConstraint(Sketcher.Constraint("Symmetric", 29, 2, 54, 2, -2))
sketch2.addConstraint(Sketcher.Constraint("Symmetric", 28, 2, 55, 2, -2))
sketch2.addConstraint(Sketcher.Constraint("Symmetric", 27, 2, 56, 2, -2))
sketch2.addConstraint(Sketcher.Constraint("Symmetric", 26, 2, 57, 2, -2))
sketch2.addConstraint(Sketcher.Constraint("Symmetric", 25, 2, 58, 2, -2))
sketch2.addConstraint(Sketcher.Constraint("Symmetric", 24, 2, 59, 2, -2))
sketch2.addConstraint(Sketcher.Constraint("Perpendicular", 0, 1))
sketch2.addConstraint(Sketcher.Constraint("Perpendicular", 1, 2))
sketch2.addConstraint(Sketcher.Constraint("Perpendicular", 2, 3))
sketch2.addConstraint(Sketcher.Constraint("Perpendicular", 8, 9))
sketch2.addConstraint(Sketcher.Constraint("Perpendicular", 9, 10))
sketch2.addConstraint(Sketcher.Constraint("Perpendicular", 10, 11))
sketch2.addConstraint(Sketcher.Constraint("Perpendicular", 12, 13))
sketch2.addConstraint(Sketcher.Constraint("Perpendicular", 13, 14))
sketch2.addConstraint(Sketcher.Constraint("Perpendicular", 14, 15))
sketch2.addConstraint(Sketcher.Constraint("Perpendicular", 16, 17))
sketch2.addConstraint(Sketcher.Constraint("Perpendicular", 17, 18))
sketch2.addConstraint(Sketcher.Constraint("Perpendicular", 18, 19))
sketch2.addConstraint(Sketcher.Constraint("Parallel", 3, 24))
sketch2.addConstraint(Sketcher.Constraint("Parallel", 11, 28))
sketch2.addConstraint(Sketcher.Constraint("Horizontal", 21, 2, 60, 2))
sketch2.addConstraint(Sketcher.Constraint("Vertical", 7, 2, 40, 2))
sketch2.addConstraint(Sketcher.Constraint("Equal", 63, 4))
sketch2.addConstraint(Sketcher.Constraint("Equal", 43, 20))
sketch2.addConstraint(Sketcher.Constraint("Equal", 2, 8))
sketch2.addConstraint(Sketcher.Constraint("Equal", 3, 9))
sketch2.addConstraint(Sketcher.Constraint("Equal", 10, 12))
sketch2.addConstraint(Sketcher.Constraint("Equal", 11, 13))
sketch2.addConstraint(Sketcher.Constraint("Equal", 14, 16))
sketch2.addConstraint(Sketcher.Constraint("Equal", 15, 17))
sketch2.addConstraint(Sketcher.Constraint("Angle", 0, Q("-162 deg")))
sketch2.addConstraint(Sketcher.Constraint("Angle", 8, Q("-144 deg")))
sketch2.addConstraint(Sketcher.Constraint("DistanceX", 5, 1, 5, 2, 1.809411))
sketch2.addConstraint(Sketcher.Constraint("DistanceY", 9, 2, -1, 1, 21.176798))
sketch2.addConstraint(Sketcher.Constraint("DistanceX", -1, 1, 14, 2, 21.176798))
sketch2.addConstraint(Sketcher.Constraint("Distance", 0, 1.809411))
sketch2.addConstraint(Sketcher.Constraint("DistanceX", 21, 1, 21, 2, 1.819947))
sketch2.addConstraint(Sketcher.Constraint("DistanceX", -1, 1, 1, 2, 7.025272))
sketch2.addConstraint(Sketcher.Constraint("DistanceX", -1, 1, 3, 2, 9.308519))
sketch2.addConstraint(Sketcher.Constraint("DistanceX", -1, 1, 10, 2, 15.731411))
sketch2.addConstraint(Sketcher.Constraint("DistanceY", 12, 2, -1, 1, 16.801149))
sketch2.addConstraint(Sketcher.Constraint("DistanceY", 16, 2, -1, 1, 9.308519))
sketch2.addConstraint(Sketcher.Constraint("DistanceY", 0, 2, -1, 1, 26.280125))
sketch2.addConstraint(Sketcher.Constraint("DistanceY", 4, 2, -1, 1, 25.518655))
sketch2.addConstraint(Sketcher.Constraint("DistanceX", -1, 1, 16, 2, 25.720986))
sketch2.addConstraint(Sketcher.Constraint("DistanceX", -1, 1, 20, 2, 25.518655))
pad2 = doc.addObject("PartDesign::Pad", "Pad001")
body.addObject(pad2)
pad2.Profile = sketch2
pad2.Length = 1
pad2.Reversed = True

doc.recompute()
